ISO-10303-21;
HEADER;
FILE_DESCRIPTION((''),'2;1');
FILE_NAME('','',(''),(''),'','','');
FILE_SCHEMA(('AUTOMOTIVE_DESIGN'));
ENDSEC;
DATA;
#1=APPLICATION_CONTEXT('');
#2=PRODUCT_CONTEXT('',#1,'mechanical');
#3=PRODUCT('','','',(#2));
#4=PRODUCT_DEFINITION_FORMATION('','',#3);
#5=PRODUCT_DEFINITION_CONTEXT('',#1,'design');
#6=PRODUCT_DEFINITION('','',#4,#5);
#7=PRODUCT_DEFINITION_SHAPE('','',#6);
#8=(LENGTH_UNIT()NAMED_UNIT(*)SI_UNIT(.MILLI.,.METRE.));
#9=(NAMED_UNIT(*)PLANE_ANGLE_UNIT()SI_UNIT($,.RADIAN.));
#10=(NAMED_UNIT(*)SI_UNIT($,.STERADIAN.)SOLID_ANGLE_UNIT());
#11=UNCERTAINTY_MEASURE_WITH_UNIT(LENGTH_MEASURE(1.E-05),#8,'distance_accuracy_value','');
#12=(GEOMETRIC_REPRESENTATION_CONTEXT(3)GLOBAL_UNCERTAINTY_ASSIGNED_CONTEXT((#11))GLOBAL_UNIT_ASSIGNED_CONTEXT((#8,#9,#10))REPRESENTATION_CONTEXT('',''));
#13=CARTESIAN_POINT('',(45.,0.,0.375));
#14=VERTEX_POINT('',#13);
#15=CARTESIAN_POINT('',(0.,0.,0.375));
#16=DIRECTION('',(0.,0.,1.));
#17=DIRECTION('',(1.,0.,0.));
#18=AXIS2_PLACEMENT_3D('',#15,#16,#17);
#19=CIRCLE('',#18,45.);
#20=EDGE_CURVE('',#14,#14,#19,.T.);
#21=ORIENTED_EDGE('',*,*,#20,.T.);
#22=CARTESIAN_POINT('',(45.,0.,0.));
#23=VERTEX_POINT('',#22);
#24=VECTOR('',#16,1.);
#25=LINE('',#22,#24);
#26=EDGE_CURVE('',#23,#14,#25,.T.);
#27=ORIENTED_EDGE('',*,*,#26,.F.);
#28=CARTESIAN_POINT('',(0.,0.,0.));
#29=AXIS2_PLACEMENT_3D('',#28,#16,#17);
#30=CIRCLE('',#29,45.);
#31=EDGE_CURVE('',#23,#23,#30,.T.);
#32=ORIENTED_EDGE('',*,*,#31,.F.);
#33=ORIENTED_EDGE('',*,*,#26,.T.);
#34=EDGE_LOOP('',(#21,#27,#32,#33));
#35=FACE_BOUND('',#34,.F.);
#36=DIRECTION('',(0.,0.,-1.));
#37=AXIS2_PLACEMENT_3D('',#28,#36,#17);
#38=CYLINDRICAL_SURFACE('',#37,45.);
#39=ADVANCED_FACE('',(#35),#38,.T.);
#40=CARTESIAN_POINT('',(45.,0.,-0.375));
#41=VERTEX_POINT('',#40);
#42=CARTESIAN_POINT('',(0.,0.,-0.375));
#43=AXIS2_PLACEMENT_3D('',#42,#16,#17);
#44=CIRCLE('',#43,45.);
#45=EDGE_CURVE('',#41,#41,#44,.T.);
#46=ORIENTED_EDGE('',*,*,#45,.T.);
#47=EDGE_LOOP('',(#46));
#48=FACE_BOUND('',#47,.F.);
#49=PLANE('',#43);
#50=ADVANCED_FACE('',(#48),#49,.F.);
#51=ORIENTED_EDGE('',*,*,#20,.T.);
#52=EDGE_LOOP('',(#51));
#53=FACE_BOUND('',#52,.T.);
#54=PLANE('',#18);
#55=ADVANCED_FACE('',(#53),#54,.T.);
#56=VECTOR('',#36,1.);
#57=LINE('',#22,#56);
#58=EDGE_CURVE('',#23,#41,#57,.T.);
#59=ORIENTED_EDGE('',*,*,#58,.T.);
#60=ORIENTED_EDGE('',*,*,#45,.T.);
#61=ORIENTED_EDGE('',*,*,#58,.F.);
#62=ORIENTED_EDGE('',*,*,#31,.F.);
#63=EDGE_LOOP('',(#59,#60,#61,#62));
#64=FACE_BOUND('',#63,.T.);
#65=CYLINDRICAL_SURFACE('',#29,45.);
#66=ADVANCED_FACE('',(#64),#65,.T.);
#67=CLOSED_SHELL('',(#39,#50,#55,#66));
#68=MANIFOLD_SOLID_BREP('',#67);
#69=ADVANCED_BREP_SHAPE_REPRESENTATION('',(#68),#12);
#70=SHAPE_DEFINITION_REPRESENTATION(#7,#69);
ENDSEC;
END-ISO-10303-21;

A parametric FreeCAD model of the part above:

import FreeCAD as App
import Part
import Sketcher
from FreeCAD import Vector

doc = App.newDocument("Part")
body = doc.addObject("PartDesign::Body", "Body")

# Sketch on XY plane
sketch1 = body.newObject("Sketcher::SketchObject", "Sketch")
sketch1.AttachmentSupport = (doc.getObject("XY_Plane"), [""])
sketch1.MapMode = "FlatFace"
sketch1.addGeometry(Part.Circle(Vector(0, 0, 0), Vector(0, 0, 1), 45), False)
sketch1.addConstraint(Sketcher.Constraint("Coincident", 0, 3, -1, 1))
sketch1.addConstraint(Sketcher.Constraint("Diameter", 0, 90.0))
pad1 = body.newObject("PartDesign::Pad", "Pad")
pad1.Profile = sketch1
pad1.Length = 0.75
pad1.Midplane = True

doc.recompute()
